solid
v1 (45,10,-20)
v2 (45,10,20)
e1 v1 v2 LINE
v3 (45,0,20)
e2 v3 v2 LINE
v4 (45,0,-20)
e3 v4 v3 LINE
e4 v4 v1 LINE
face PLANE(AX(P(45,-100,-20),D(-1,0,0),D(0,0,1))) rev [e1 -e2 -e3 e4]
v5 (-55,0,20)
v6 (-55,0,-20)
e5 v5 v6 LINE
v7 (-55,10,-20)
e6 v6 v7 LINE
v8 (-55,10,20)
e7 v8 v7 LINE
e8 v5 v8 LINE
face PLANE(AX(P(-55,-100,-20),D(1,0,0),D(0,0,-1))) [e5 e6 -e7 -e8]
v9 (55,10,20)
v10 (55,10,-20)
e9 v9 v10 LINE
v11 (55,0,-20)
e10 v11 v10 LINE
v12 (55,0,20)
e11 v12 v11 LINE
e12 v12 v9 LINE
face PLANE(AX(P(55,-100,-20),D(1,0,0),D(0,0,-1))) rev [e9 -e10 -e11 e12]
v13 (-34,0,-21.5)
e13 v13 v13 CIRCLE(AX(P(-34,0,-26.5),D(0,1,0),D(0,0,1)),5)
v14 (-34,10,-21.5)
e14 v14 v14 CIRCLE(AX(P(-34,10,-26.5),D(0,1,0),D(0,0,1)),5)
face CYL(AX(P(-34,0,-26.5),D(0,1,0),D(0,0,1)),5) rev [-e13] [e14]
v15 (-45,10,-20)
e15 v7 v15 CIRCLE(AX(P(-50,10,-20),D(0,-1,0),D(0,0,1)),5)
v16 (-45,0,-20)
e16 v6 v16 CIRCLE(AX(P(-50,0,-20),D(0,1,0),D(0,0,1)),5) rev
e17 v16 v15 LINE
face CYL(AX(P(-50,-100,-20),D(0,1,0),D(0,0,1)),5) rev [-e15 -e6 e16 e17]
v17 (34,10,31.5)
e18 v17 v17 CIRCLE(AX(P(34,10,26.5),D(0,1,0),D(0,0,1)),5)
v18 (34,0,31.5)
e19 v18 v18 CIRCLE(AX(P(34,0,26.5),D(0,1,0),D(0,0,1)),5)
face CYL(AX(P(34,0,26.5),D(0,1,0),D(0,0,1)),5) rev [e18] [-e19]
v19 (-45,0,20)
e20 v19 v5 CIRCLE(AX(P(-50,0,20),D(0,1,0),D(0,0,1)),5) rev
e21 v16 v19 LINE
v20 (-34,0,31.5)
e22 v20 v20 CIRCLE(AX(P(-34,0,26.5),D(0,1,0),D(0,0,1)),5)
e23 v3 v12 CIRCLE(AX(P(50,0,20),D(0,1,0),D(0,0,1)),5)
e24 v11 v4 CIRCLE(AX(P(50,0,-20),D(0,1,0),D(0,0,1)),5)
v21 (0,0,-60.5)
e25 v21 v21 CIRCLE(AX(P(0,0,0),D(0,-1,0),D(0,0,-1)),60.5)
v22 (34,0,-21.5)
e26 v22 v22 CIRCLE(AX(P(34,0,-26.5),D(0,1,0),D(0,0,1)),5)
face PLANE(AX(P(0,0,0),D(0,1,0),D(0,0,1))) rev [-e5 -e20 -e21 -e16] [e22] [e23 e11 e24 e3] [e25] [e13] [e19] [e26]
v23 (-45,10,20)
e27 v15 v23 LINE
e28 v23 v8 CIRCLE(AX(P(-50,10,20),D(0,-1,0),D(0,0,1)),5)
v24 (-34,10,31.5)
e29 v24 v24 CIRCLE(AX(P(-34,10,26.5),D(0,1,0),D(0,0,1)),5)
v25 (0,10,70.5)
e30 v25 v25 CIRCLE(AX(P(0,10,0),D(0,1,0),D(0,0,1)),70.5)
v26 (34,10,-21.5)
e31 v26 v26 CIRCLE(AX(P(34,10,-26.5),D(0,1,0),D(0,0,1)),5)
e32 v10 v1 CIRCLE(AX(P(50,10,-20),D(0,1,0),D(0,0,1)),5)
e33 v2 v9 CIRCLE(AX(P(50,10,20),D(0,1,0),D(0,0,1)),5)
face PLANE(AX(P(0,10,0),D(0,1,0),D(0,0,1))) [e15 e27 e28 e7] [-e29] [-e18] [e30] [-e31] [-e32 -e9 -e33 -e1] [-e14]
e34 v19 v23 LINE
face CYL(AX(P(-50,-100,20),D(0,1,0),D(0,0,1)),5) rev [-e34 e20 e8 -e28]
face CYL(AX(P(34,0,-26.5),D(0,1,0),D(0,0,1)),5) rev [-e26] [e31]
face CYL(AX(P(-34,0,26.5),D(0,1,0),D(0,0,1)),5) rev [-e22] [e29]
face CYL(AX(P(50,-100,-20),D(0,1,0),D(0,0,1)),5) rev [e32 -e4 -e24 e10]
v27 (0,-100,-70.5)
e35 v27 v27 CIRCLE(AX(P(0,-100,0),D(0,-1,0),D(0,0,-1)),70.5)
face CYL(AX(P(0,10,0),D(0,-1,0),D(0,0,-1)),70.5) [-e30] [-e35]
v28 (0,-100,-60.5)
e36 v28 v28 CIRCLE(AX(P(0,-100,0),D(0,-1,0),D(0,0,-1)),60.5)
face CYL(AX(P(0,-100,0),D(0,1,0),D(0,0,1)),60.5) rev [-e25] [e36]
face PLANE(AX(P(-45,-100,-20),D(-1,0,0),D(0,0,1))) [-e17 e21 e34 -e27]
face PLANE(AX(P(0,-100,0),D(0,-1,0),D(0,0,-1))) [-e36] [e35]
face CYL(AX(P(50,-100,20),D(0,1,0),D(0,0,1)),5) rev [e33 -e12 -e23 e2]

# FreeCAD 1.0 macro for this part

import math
import FreeCAD as App
import Part
import Sketcher

doc = App.newDocument("Part")
params = doc.addObject("Spreadsheet::Sheet", "Params")
for row, (alias, value) in enumerate([
    ("sketch1_diameter", "141 mm"),
    ("pad1_length", "10 mm"),
    ("sketch2_diameter", "10 mm"),
    ("sketch3_diameter", "141 mm"),
    ("sketch3_diameter2", "121 mm"),
    ("pad2_length", "100 mm"),
    ("sketch4_radius", "5 mm"),
    ("sketch4_height", "40 mm"),
], start=1):
    params.set(f"A{row}", alias)
    params.set(f"B{row}", "=" + value)
    params.setAlias(f"B{row}", alias)

body = doc.addObject("PartDesign::Body", "Body")

# Sketch on XZ plane
sketch1 = body.newObject("Sketcher::SketchObject", "Sketch")
sketch1.AttachmentSupport = (doc.getObject("XZ_Plane"), [""])
sketch1.MapMode = "FlatFace"
sketch1.addGeometry(Part.Circle(App.Vector(0, 0, 0), App.Vector(0, 0, 1), 70), False)
sketch1.addConstraint(Sketcher.Constraint("Coincident", 0, 3, -1, 1))
sketch1.addConstraint(Sketcher.Constraint("Diameter", 0, 141.0))
sketch1.setExpression("Constraints[1]", "Params.sketch1_diameter")
pad1 = body.newObject("PartDesign::Pad", "Pad")
pad1.Profile = sketch1
pad1.setExpression("Length", "Params.pad1_length")
pad1.Reversed = True

# Sketch on XZ plane
sketch2 = body.newObject("Sketcher::SketchObject", "Sketch001")
sketch2.AttachmentSupport = (doc.getObject("XZ_Plane"), [""])
sketch2.MapMode = "FlatFace"
sketch2.AttachmentOffset = App.Placement(App.Vector(0, 0, -10), App.Rotation())
sketch2.addGeometry(Part.Circle(App.Vector(-34, 26, 0), App.Vector(0, 0, 1), 5), False)
sketch2.addGeometry(Part.Circle(App.Vector(34, 26, 0), App.Vector(0, 0, 1), 5), False)
sketch2.addGeometry(Part.Circle(App.Vector(34, -26, 0), App.Vector(0, 0, 1), 5), False)
sketch2.addGeometry(Part.Circle(App.Vector(-34, -26, 0), App.Vector(0, 0, 1), 5), False)
sketch2.addConstraint(Sketcher.Constraint("Equal", 0, 1))
sketch2.addConstraint(Sketcher.Constraint("Equal", 1, 2))
sketch2.addConstraint(Sketcher.Constraint("Equal", 2, 3))
sketch2.addConstraint(Sketcher.Constraint("Symmetric", 0, 3, 2, 3, -1, 1))
sketch2.addConstraint(Sketcher.Constraint("Symmetric", 1, 3, 3, 3, -1, 1))
sketch2.addConstraint(Sketcher.Constraint("Symmetric", 0, 3, 1, 3, -2))
sketch2.addConstraint(Sketcher.Constraint("Diameter", 0, 10.0))
sketch2.addConstraint(Sketcher.Constraint("DistanceX", 0, 3, -1, 1, 34.0))
sketch2.addConstraint(Sketcher.Constraint("DistanceY", 2, 3, 1, 3, 53.0))
sketch2.setExpression("Constraints[6]", "Params.sketch2_diameter")
pocket1 = body.newObject("PartDesign::Pocket", "Pocket")
pocket1.Profile = sketch2
pocket1.Type = "ThroughAll"
pocket1.Reversed = True

# Sketch on XZ plane
sketch3 = body.newObject("Sketcher::SketchObject", "Sketch002")
sketch3.AttachmentSupport = (doc.getObject("XZ_Plane"), [""])
sketch3.MapMode = "FlatFace"
sketch3.AttachmentOffset = App.Placement(App.Vector(0, 0, 100), App.Rotation())
sketch3.addGeometry(Part.Circle(App.Vector(0, 0, 0), App.Vector(0, 0, 1), 70), False)
sketch3.addGeometry(Part.Circle(App.Vector(0, 0, 0), App.Vector(0, 0, 1), 60), False)
sketch3.addConstraint(Sketcher.Constraint("Coincident", 0, 3, -1, 1))
sketch3.addConstraint(Sketcher.Constraint("Coincident", 1, 3, -1, 1))
sketch3.addConstraint(Sketcher.Constraint("Diameter", 0, 141.0))
sketch3.addConstraint(Sketcher.Constraint("Diameter", 1, 121.0))
sketch3.setExpression("Constraints[2]", "Params.sketch3_diameter")
sketch3.setExpression("Constraints[3]", "Params.sketch3_diameter2")
pad2 = body.newObject("PartDesign::Pad", "Pad001")
pad2.Profile = sketch3
pad2.setExpression("Length", "Params.pad2_length")
pad2.Reversed = True

# Sketch on XZ plane
sketch4 = body.newObject("Sketcher::SketchObject", "Sketch003")
sketch4.AttachmentSupport = (doc.getObject("XZ_Plane"), [""])
sketch4.MapMode = "FlatFace"
sketch4.AttachmentOffset = App.Placement(App.Vector(0, 0, -10), App.Rotation())
sketch4.addGeometry(Part.LineSegment(App.Vector(55, 20, 0), App.Vector(55, -20, 0)), False)
sketch4.addGeometry(Part.ArcOfCircle(Part.Circle(App.Vector(50, -20, 0), App.Vector(0, 0, 1), 5), math.radians(180), math.radians(360)), False)
sketch4.addGeometry(Part.LineSegment(App.Vector(45, -20, 0), App.Vector(45, 20, 0)), False)
sketch4.addGeometry(Part.ArcOfCircle(Part.Circle(App.Vector(50, 20, 0), App.Vector(0, 0, 1), 5), math.radians(0), math.radians(180)), False)
sketch4.addConstraint(Sketcher.Constraint("Tangent", 0, 2, 1, 2))
sketch4.addConstraint(Sketcher.Constraint("Tangent", 1, 1, 2, 1))
sketch4.addConstraint(Sketcher.Constraint("Tangent", 2, 2, 3, 2))
sketch4.addConstraint(Sketcher.Constraint("Tangent", 3, 1, 0, 1))
sketch4.addConstraint(Sketcher.Constraint("Vertical", 0))
sketch4.addConstraint(Sketcher.Constraint("Vertical", 2))
sketch4.addConstraint(Sketcher.Constraint("Radius", 1, 5.0))
sketch4.addConstraint(Sketcher.Constraint("DistanceY", 0, 2, 0, 1, 40.0))
sketch4.addConstraint(Sketcher.Constraint("DistanceX", -1, 1, 1, 3, 50.0))
sketch4.addConstraint(Sketcher.Constraint("DistanceY", 1, 3, -1, 1, 20.0))
sketch4.setExpression("Constraints[6]", "Params.sketch4_radius")
sketch4.setExpression("Constraints[7]", "Params.sketch4_height")
pocket2 = body.newObject("PartDesign::Pocket", "Pocket001")
pocket2.Profile = sketch4
pocket2.Type = "ThroughAll"
pocket2.Reversed = True
doc.recompute()

mirrored = body.newObject("PartDesign::Mirrored", "Mirrored")
mirrored.Originals = [pocket2]
mirrored.MirrorPlane = (doc.getObject("YZ_Plane"), [""])
body.Tip = mirrored

doc.recompute()
